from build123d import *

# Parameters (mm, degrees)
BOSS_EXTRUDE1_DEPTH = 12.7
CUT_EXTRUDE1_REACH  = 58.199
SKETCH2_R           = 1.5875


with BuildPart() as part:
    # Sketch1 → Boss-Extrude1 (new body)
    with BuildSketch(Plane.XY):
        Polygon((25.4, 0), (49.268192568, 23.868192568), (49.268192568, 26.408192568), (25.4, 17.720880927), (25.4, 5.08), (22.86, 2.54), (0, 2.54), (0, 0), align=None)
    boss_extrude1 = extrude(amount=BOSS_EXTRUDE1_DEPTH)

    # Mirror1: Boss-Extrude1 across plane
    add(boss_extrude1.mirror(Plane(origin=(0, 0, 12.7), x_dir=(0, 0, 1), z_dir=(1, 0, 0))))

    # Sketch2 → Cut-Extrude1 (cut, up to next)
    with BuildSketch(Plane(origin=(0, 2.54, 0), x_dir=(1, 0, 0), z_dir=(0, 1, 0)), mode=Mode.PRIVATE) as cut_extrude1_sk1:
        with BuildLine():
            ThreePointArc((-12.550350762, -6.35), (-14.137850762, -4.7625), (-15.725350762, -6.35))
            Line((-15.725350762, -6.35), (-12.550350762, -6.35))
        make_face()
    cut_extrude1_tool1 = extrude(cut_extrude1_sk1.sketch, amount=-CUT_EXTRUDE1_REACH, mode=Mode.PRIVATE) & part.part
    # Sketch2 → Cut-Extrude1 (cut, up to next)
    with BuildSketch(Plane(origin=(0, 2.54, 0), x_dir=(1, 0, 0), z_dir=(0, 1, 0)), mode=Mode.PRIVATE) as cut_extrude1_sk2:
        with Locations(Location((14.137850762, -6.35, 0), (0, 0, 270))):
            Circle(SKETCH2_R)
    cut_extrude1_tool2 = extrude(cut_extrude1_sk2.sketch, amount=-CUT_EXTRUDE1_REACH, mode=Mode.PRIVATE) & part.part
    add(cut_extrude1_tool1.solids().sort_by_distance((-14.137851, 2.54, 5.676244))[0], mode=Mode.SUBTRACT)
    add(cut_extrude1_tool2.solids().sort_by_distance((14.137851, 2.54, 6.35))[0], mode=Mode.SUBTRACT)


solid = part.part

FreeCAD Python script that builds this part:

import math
import FreeCAD as App
import Part
import Sketcher

V = App.Vector
Q = App.Units.Quantity

doc = App.newDocument("Part")
body = doc.addObject("PartDesign::Body", "Body")

# Sketch on XY plane
sketch1 = body.newObject("Sketcher::SketchObject", "Sketch")
sketch1.AttachmentSupport = (doc.getObject("XY_Plane"), [""])
sketch1.MapMode = "FlatFace"
sketch1.addGeometry([
    Part.LineSegment(V(25.4, 0, 0), V(49.3, 23.9, 0)),  # 0
    Part.LineSegment(V(49.3, 23.9, 0), V(49.3, 26.4, 0)),  # 1
    Part.LineSegment(V(49.3, 26.4, 0), V(25.4, 17.7, 0)),  # 2
    Part.LineSegment(V(25.4, 17.7, 0), V(25.4, 5.1, 0)),  # 3
    Part.LineSegment(V(25.4, 5.1, 0), V(22.9, 2.5, 0)),  # 4
    Part.LineSegment(V(22.9, 2.5, 0), V(0, 2.5, 0)),  # 5
    Part.LineSegment(V(0, 2.5, 0), V(0, 0, 0)),  # 6
    Part.LineSegment(V(0, 0, 0), V(25.4, 0, 0)),  # 7
], False)
sketch1.addConstraint([
    Sketcher.Constraint("Coincident", 0, 2, 1, 1),
    Sketcher.Constraint("Coincident", 1, 2, 2, 1),
    Sketcher.Constraint("Coincident", 2, 2, 3, 1),
    Sketcher.Constraint("Coincident", 3, 2, 4, 1),
    Sketcher.Constraint("Coincident", 4, 2, 5, 1),
    Sketcher.Constraint("Coincident", 5, 2, 6, 1),
    Sketcher.Constraint("Coincident", 6, 2, 7, 1),
    Sketcher.Constraint("Coincident", 7, 2, 0, 1),
    Sketcher.Constraint("Vertical", 1),
    Sketcher.Constraint("Vertical", 3),
    Sketcher.Constraint("Horizontal", 5),
    Sketcher.Constraint("Vertical", 6),
    Sketcher.Constraint("Horizontal", 7),
    Sketcher.Constraint("Coincident", 6, 2, -1, 1),
    Sketcher.Constraint("Parallel", 0, 4),
    Sketcher.Constraint("Vertical", 3, 2, 7, 2),
    Sketcher.Constraint("Equal", 1, 6),
    Sketcher.Constraint("DistanceX", 7, 1, 7, 2, Q("1 in")),
    Sketcher.Constraint("Distance", 2, Q("1 in")),
    Sketcher.Constraint("DistanceX", 5, 2, 5, 1, Q("0.9 in")),
    Sketcher.Constraint("DistanceY", 1, 1, 1, 2, Q("0.1 in")),
    Sketcher.Constraint("Angle", 0, Q("45 deg")),
    Sketcher.Constraint("Angle", 2, Q("-160 deg")),
])
pad1 = body.newObject("PartDesign::Pad", "Pad")
pad1.Profile = sketch1
pad1.Length = Q("0.5 in")
doc.recompute()

mirrored = body.newObject("PartDesign::Mirrored", "Mirrored")
mirrored.Originals = [pad1]
mirrored.MirrorPlane = (doc.getObject("YZ_Plane"), [""])
body.Tip = mirrored

# Sketch on XZ plane
sketch2 = body.newObject("Sketcher::SketchObject", "Sketch001")
sketch2.AttachmentSupport = (doc.getObject("XZ_Plane"), [""])
sketch2.MapMode = "FlatFace"
sketch2.AttachmentOffset = App.Placement(V(0, 0, -0.1 * 25.4), App.Rotation())
sketch2.addGeometry([
    Part.ArcOfCircle(Part.Circle(V(-14.1, 6.3, 0), V(0, 0, 1), 1.6), math.radians(180), math.radians(360)),
    Part.LineSegment(V(-15.7, 6.3, 0), V(-12.6, 6.3, 0)),
], False)
sketch2.addConstraint([
    Sketcher.Constraint("Coincident", 0, 1, 1, 1),
    Sketcher.Constraint("Coincident", 1, 2, 0, 2),
    Sketcher.Constraint("Horizontal", 1),
    Sketcher.Constraint("Radius", 0, Q("0.0625 in")),
    Sketcher.Constraint("DistanceY", -1, 1, 0, 3, Q("0.25 in")),
    Sketcher.Constraint("DistanceY", -1, 1, 0, 1, Q("0.25 in")),
    Sketcher.Constraint("DistanceX", 0, 3, -1, 1, 14.137851),
])
pocket1 = body.newObject("PartDesign::Pocket", "Pocket")
pocket1.Profile = sketch2
pocket1.Type = "UpToFirst"
pocket1.Reversed = True

# Sketch on XZ plane
sketch3 = body.newObject("Sketcher::SketchObject", "Sketch002")
sketch3.AttachmentSupport = (doc.getObject("XZ_Plane"), [""])
sketch3.MapMode = "FlatFace"
sketch3.AttachmentOffset = App.Placement(V(0, 0, -0.1 * 25.4), App.Rotation())
sketch3.addGeometry(Part.Circle(V(14.1, 6.3, 0), V(0, 0, 1), 1.6), False)
sketch3.addConstraint([
    Sketcher.Constraint("Diameter", 0, Q("0.125 in")),
    Sketcher.Constraint("DistanceY", -1, 1, 0, 3, Q("0.25 in")),
    Sketcher.Constraint("DistanceX", -1, 1, 0, 3, 14.137851),
])
pocket2 = body.newObject("PartDesign::Pocket", "Pocket001")
pocket2.Profile = sketch3
pocket2.Type = "UpToFirst"
pocket2.Reversed = True

doc.recompute()
